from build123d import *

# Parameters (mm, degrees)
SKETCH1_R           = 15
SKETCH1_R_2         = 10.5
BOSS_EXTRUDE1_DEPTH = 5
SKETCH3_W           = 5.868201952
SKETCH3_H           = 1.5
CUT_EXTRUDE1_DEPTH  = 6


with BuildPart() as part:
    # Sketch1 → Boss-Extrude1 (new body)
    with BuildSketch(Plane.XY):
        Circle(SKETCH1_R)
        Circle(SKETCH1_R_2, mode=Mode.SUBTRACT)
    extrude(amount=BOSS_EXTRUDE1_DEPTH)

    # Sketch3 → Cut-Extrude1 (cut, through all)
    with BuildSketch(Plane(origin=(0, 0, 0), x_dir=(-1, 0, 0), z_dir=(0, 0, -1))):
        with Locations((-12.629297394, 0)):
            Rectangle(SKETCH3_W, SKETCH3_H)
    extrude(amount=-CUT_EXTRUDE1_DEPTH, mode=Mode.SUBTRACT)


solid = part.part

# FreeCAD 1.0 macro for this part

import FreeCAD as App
import Part
import Sketcher
from FreeCAD import Vector


def add_polygon(sketch, points):
    """Adds a closed chain of lines whose ends are joined by coincident constraints."""
    first, n = sketch.GeometryCount, len(points)
    for a, b in zip(points, points[1:] + points[:1]):
        sketch.addGeometry(Part.LineSegment(App.Vector(*a, 0), App.Vector(*b, 0)), False)
    for i in range(n):
        sketch.addConstraint(Sketcher.Constraint("Coincident", first + i, 2, first + (i + 1) % n, 1))

doc = App.newDocument("Part")
body = doc.addObject("PartDesign::Body", "Body")

# Sketch on XY plane
sketch1 = body.newObject("Sketcher::SketchObject", "Sketch")
sketch1.AttachmentSupport = (doc.getObject("XY_Plane"), [""])
sketch1.MapMode = "FlatFace"
sketch1.addGeometry(Part.Circle(Vector(0, 0, 0), Vector(0, 0, 1), 15), False)
sketch1.addGeometry(Part.Circle(Vector(0, 0, 0), Vector(0, 0, 1), 10), False)
sketch1.addConstraint(Sketcher.Constraint("Coincident", 0, 3, -1, 1))
sketch1.addConstraint(Sketcher.Constraint("Coincident", 1, 3, -1, 1))
sketch1.addConstraint(Sketcher.Constraint("Diameter", 0, 30.0))
sketch1.addConstraint(Sketcher.Constraint("Diameter", 1, 21.0))
pad1 = body.newObject("PartDesign::Pad", "Pad")
pad1.Profile = sketch1
pad1.Length = 5

# Sketch on XY plane
sketch2 = body.newObject("Sketcher::SketchObject", "Sketch001")
sketch2.AttachmentSupport = (doc.getObject("XY_Plane"), [""])
sketch2.MapMode = "FlatFace"
add_polygon(sketch2, [(15.6, 0.8), (15.6, -0.8), (9.7, -0.8), (9.7, 0.8)])  # lines 0-3
sketch2.addConstraint(Sketcher.Constraint("Vertical", 0))
sketch2.addConstraint(Sketcher.Constraint("Horizontal", 1))
sketch2.addConstraint(Sketcher.Constraint("Vertical", 2))
sketch2.addConstraint(Sketcher.Constraint("Horizontal", 3))
sketch2.addConstraint(Sketcher.Constraint("DistanceY", 0, 2, 0, 1, 1.5))
sketch2.addConstraint(Sketcher.Constraint("DistanceY", 0, 2, -1, 1, 0.75))
sketch2.addConstraint(Sketcher.Constraint("DistanceX", 1, 2, 1, 1, 5.868202))
sketch2.addConstraint(Sketcher.Constraint("DistanceX", -1, 1, 0, 2, 15.563398))
pocket1 = body.newObject("PartDesign::Pocket", "Pocket")
pocket1.Profile = sketch2
pocket1.Type = "ThroughAll"
pocket1.Reversed = True

doc.recompute()
